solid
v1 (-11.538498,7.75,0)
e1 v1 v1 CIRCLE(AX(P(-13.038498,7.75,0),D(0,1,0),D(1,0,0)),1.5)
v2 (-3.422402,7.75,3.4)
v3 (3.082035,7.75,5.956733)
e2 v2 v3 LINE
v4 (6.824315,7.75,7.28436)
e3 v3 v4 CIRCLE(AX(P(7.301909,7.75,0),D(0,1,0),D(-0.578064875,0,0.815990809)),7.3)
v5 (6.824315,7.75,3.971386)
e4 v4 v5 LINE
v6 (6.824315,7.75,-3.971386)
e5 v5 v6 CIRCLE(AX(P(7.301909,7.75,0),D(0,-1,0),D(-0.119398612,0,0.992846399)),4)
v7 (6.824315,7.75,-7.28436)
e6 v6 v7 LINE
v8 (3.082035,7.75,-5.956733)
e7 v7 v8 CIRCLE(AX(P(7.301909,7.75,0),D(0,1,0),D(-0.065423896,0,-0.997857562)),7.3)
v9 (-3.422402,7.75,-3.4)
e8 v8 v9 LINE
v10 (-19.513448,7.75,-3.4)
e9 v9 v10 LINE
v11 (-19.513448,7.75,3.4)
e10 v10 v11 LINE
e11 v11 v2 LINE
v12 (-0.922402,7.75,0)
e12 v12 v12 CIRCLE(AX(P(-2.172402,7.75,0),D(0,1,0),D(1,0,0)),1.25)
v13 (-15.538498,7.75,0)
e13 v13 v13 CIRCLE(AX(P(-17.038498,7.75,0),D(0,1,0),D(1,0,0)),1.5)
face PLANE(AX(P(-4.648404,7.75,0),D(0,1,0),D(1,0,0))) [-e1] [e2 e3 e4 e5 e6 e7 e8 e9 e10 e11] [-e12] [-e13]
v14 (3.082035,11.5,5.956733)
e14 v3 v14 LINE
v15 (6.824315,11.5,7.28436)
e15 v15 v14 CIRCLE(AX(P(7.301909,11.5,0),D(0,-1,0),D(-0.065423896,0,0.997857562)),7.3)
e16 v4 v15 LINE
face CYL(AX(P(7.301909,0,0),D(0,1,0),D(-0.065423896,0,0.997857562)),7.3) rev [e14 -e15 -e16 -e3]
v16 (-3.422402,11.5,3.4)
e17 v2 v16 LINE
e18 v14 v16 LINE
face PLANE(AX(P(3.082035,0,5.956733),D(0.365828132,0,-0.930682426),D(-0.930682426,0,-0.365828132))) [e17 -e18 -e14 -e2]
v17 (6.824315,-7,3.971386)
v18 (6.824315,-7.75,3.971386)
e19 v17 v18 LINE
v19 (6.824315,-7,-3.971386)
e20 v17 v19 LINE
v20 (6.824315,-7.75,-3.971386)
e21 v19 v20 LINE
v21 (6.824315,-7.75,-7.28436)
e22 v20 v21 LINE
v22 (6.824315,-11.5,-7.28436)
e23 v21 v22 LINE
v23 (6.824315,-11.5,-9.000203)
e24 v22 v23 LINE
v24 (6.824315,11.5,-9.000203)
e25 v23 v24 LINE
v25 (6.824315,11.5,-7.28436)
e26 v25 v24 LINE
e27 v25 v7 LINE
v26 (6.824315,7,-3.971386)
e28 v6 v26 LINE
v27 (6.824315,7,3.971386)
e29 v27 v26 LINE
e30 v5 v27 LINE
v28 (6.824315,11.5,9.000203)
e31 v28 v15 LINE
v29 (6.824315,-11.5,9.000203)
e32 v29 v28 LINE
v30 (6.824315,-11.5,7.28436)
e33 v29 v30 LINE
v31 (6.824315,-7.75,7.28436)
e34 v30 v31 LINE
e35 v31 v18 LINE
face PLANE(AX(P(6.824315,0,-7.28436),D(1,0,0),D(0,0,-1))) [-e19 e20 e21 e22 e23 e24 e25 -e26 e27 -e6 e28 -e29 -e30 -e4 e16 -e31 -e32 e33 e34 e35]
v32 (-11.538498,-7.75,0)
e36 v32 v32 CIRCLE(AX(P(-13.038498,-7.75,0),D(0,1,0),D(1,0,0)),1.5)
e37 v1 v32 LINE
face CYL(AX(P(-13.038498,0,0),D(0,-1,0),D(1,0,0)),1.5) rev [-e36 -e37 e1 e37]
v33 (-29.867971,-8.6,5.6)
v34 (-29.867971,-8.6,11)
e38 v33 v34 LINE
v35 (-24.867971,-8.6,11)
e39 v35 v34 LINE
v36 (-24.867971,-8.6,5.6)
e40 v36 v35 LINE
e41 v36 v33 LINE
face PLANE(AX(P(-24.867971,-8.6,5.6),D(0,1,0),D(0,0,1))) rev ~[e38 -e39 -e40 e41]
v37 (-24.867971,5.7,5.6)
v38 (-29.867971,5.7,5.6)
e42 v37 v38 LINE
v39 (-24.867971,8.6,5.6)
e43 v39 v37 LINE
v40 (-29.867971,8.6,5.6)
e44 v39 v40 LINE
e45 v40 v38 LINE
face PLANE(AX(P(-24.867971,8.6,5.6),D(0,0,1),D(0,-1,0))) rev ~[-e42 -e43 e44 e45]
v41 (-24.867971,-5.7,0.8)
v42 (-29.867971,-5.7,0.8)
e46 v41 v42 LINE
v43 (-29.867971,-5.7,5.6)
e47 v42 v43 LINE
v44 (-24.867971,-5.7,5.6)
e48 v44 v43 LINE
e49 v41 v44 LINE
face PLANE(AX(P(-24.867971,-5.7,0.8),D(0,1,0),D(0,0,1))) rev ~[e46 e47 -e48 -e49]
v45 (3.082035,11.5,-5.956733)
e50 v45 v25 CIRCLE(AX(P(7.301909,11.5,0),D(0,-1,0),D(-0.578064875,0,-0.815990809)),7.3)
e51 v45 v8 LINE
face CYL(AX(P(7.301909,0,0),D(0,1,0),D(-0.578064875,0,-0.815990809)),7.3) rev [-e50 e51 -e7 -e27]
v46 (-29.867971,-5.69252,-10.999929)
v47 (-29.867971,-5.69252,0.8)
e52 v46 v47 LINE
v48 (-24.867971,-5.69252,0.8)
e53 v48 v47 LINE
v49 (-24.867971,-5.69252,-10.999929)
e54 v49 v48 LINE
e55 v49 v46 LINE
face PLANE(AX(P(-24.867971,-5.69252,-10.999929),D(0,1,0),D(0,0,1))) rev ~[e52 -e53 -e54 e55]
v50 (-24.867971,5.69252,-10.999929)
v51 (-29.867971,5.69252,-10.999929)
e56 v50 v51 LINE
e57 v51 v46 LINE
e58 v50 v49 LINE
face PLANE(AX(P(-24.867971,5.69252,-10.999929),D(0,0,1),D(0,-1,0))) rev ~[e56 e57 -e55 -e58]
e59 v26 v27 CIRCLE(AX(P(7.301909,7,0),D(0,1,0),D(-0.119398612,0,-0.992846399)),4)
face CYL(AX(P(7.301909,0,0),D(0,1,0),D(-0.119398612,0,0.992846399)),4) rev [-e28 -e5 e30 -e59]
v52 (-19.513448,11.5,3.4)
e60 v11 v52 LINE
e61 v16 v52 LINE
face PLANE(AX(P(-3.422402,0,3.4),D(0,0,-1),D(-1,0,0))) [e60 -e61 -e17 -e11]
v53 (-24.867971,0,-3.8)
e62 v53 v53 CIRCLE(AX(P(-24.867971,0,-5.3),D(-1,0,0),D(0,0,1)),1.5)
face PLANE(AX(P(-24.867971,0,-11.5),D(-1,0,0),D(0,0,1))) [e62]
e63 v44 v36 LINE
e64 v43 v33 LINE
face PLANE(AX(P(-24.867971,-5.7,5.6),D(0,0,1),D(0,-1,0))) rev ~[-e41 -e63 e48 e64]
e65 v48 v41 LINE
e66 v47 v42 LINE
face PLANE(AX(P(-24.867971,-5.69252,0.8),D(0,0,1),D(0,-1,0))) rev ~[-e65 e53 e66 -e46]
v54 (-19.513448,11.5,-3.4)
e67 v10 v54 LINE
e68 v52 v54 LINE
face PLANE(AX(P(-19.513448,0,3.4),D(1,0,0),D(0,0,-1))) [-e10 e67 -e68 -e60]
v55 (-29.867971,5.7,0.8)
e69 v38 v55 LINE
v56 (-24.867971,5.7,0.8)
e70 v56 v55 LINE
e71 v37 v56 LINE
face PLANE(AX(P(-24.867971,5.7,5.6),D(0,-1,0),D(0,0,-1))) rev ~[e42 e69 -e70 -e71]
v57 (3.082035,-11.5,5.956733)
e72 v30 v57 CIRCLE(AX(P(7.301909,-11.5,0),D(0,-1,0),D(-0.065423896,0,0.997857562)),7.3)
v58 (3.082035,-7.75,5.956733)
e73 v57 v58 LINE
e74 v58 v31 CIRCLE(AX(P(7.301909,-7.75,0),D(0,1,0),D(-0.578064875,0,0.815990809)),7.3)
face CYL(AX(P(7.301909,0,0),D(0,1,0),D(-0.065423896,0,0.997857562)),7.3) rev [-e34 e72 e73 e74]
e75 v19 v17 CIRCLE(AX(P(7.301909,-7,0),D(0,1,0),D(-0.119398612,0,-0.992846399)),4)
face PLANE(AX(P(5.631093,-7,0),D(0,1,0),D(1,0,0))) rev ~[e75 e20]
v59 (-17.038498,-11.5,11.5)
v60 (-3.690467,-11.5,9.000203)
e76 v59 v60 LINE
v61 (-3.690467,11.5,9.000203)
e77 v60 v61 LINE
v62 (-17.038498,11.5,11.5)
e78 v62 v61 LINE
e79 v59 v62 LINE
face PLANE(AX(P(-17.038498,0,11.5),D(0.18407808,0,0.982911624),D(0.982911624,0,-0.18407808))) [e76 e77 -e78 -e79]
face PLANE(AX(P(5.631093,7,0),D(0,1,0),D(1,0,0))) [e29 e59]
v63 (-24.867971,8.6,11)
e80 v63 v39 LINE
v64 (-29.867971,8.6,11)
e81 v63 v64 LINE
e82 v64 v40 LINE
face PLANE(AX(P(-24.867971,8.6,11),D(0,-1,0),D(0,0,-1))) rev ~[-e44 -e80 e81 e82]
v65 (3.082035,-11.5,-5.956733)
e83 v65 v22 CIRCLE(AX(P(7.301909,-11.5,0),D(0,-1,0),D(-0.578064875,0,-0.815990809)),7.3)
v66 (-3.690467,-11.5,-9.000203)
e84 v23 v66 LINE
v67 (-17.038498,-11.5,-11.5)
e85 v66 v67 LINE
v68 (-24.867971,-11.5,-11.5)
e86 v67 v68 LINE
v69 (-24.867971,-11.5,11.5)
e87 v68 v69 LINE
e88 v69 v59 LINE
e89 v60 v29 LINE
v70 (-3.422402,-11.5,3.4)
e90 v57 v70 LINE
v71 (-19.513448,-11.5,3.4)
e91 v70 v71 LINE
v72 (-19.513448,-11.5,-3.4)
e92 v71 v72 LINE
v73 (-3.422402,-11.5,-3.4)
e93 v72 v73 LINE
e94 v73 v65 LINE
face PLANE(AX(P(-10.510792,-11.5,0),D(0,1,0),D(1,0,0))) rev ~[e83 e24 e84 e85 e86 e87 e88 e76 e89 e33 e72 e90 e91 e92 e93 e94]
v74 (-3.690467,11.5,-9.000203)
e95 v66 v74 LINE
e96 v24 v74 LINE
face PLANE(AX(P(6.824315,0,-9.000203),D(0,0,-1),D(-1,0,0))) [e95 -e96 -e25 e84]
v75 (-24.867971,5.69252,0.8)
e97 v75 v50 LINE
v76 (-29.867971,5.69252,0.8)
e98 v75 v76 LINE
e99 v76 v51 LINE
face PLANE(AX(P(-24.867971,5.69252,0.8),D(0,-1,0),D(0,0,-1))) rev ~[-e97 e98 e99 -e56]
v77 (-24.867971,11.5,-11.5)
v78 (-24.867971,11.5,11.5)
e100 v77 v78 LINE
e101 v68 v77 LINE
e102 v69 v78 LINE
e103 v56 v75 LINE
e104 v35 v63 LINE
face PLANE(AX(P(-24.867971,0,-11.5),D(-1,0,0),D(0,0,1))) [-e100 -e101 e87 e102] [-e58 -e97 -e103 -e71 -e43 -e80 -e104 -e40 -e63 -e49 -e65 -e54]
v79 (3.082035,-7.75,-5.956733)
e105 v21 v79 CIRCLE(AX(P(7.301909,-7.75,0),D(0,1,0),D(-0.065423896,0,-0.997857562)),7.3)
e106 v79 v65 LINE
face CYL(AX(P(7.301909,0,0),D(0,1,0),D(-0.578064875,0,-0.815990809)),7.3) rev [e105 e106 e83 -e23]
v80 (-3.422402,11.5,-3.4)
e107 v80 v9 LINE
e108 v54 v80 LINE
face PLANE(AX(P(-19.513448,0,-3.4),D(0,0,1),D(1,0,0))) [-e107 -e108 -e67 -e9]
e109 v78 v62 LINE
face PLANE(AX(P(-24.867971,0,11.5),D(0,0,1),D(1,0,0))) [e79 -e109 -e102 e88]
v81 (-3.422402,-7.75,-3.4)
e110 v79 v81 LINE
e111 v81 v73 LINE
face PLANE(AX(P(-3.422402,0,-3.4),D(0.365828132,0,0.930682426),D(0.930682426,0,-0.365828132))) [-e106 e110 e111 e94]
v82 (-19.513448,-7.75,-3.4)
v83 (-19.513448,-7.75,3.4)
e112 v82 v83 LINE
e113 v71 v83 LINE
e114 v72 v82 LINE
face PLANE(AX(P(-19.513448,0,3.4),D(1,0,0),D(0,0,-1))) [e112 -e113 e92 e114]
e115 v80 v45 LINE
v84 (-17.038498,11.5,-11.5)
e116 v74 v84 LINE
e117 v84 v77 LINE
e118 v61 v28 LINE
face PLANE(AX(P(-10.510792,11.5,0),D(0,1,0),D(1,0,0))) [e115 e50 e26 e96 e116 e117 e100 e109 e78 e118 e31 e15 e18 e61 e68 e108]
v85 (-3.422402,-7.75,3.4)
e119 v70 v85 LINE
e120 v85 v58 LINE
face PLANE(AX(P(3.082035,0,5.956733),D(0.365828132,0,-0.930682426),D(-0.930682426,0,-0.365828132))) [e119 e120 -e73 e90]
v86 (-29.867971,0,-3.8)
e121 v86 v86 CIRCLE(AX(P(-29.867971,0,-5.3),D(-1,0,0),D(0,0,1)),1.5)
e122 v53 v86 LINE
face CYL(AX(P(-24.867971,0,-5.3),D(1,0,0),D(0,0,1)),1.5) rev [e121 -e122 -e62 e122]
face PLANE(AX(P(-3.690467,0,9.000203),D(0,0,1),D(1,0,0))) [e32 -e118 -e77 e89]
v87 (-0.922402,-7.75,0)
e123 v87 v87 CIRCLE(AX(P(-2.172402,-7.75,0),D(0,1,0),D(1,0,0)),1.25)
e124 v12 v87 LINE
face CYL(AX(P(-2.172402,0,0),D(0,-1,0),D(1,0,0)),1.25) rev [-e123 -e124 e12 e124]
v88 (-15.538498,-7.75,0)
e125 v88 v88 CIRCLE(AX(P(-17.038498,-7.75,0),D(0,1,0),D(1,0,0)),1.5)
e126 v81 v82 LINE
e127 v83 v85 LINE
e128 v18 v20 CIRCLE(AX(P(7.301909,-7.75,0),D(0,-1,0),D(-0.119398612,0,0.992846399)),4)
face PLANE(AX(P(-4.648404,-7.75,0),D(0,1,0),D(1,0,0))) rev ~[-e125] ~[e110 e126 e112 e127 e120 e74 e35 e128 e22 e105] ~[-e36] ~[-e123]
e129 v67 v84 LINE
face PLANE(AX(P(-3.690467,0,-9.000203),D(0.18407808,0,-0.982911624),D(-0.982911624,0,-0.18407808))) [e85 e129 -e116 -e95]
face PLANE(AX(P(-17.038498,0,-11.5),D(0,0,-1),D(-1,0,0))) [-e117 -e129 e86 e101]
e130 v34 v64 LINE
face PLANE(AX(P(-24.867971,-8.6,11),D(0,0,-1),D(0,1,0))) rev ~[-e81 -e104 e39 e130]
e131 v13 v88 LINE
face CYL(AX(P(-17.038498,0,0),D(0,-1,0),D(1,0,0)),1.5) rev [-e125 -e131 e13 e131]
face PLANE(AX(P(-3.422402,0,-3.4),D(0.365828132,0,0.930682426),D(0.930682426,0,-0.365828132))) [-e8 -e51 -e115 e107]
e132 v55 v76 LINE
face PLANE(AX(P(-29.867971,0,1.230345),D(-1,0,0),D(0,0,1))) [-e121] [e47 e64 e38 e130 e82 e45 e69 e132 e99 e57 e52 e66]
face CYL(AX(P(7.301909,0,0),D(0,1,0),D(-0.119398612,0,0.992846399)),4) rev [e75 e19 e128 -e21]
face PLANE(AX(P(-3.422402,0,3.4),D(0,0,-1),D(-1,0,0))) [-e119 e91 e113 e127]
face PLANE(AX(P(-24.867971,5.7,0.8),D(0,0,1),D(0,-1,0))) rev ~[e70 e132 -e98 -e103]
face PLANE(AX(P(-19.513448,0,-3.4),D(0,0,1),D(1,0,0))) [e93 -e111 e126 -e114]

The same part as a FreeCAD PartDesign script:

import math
import FreeCAD as App
import Part
import Sketcher
Q = App.Units.Quantity


def add_polygon(sketch, points):
    """Adds a closed chain of lines whose ends are joined by coincident constraints."""
    first, n = sketch.GeometryCount, len(points)
    for a, b in zip(points, points[1:] + points[:1]):
        sketch.addGeometry(Part.LineSegment(App.Vector(*a, 0), App.Vector(*b, 0)), False)
    for i in range(n):
        sketch.addConstraint(Sketcher.Constraint("Coincident", first + i, 2, first + (i + 1) % n, 1))

doc = App.newDocument("Part")
body = doc.addObject("PartDesign::Body", "Body")

# Sketch on XZ plane
sketch1 = body.newObject("Sketcher::SketchObject", "Sketch")
sketch1.AttachmentSupport = (doc.getObject("XZ_Plane"), [""])
sketch1.MapMode = "FlatFace"
sketch1.addGeometry([
    Part.LineSegment(App.Vector(6.8, -7.3, 0), App.Vector(6.8, -9, 0)),  # 0
    Part.LineSegment(App.Vector(6.8, -9, 0), App.Vector(-3.7, -9, 0)),  # 1
    Part.LineSegment(App.Vector(-3.7, -9, 0), App.Vector(-17, -11.5, 0)),  # 2
    Part.LineSegment(App.Vector(-17, -11.5, 0), App.Vector(-24.9, -11.5, 0)),  # 3
    Part.LineSegment(App.Vector(-24.9, -11.5, 0), App.Vector(-24.9, 11.5, 0)),  # 4
    Part.LineSegment(App.Vector(-24.9, 11.5, 0), App.Vector(-17, 11.5, 0)),  # 5
    Part.LineSegment(App.Vector(-17, 11.5, 0), App.Vector(-3.7, 9, 0)),  # 6
    Part.LineSegment(App.Vector(-3.7, 9, 0), App.Vector(6.8, 9, 0)),  # 7
    Part.LineSegment(App.Vector(6.8, 9, 0), App.Vector(6.8, 7.3, 0)),  # 8
    Part.ArcOfCircle(Part.Circle(App.Vector(7.3, 0, 0), App.Vector(0, 0, 1), 7.3), math.radians(94), math.radians(125)),  # 9
    Part.LineSegment(App.Vector(3.1, 6, 0), App.Vector(-3.4, 3.4, 0)),  # 10
    Part.LineSegment(App.Vector(-3.4, 3.4, 0), App.Vector(-19.5, 3.4, 0)),  # 11
    Part.LineSegment(App.Vector(-19.5, 3.4, 0), App.Vector(-19.5, -3.4, 0)),  # 12
    Part.LineSegment(App.Vector(-19.5, -3.4, 0), App.Vector(-3.4, -3.4, 0)),  # 13
    Part.LineSegment(App.Vector(-3.4, -3.4, 0), App.Vector(3.1, -6, 0)),  # 14
    Part.ArcOfCircle(Part.Circle(App.Vector(7.3, 0, 0), App.Vector(0, 0, 1), 7.3), math.radians(-125), math.radians(-94)),  # 15
], False)
sketch1.addConstraint([
    Sketcher.Constraint("Coincident", 0, 2, 1, 1),
    Sketcher.Constraint("Coincident", 1, 2, 2, 1),
    Sketcher.Constraint("Coincident", 2, 2, 3, 1),
    Sketcher.Constraint("Coincident", 3, 2, 4, 1),
    Sketcher.Constraint("Coincident", 4, 2, 5, 1),
    Sketcher.Constraint("Coincident", 5, 2, 6, 1),
    Sketcher.Constraint("Coincident", 6, 2, 7, 1),
    Sketcher.Constraint("Coincident", 7, 2, 8, 1),
    Sketcher.Constraint("Coincident", 8, 2, 9, 1),
    Sketcher.Constraint("Coincident", 9, 2, 10, 1),
    Sketcher.Constraint("Coincident", 10, 2, 11, 1),
    Sketcher.Constraint("Coincident", 11, 2, 12, 1),
    Sketcher.Constraint("Coincident", 12, 2, 13, 1),
    Sketcher.Constraint("Coincident", 13, 2, 14, 1),
    Sketcher.Constraint("Coincident", 14, 2, 15, 1),
    Sketcher.Constraint("Coincident", 15, 2, 0, 1),
    Sketcher.Constraint("Vertical", 0),
    Sketcher.Constraint("Horizontal", 1),
    Sketcher.Constraint("Horizontal", 3),
    Sketcher.Constraint("Vertical", 4),
    Sketcher.Constraint("Horizontal", 5),
    Sketcher.Constraint("Horizontal", 7),
    Sketcher.Constraint("Vertical", 8),
    Sketcher.Constraint("Horizontal", 11),
    Sketcher.Constraint("Vertical", 12),
    Sketcher.Constraint("Horizontal", 13),
    Sketcher.Constraint("Coincident", 15, 3, 9, 3),
    Sketcher.Constraint("Equal", 9, 15),
    Sketcher.Constraint("Symmetric", 2, 2, 5, 2, -1),
    Sketcher.Constraint("Symmetric", 1, 2, 6, 2, -1),
    Sketcher.Constraint("Symmetric", 10, 2, 13, 2, -1),
    Sketcher.Constraint("Symmetric", 9, 2, 14, 2, -1),
    Sketcher.Constraint("Vertical", 0, 2, 7, 2),
    Sketcher.Constraint("Radius", 9, Q("7.3 mm")),
    Sketcher.Constraint("DistanceY", 4, 1, 4, 2, Q("23 mm")),
    Sketcher.Constraint("DistanceY", 12, 2, 12, 1, Q("6.8 mm")),
    Sketcher.Constraint("DistanceX", 1, 2, 1, 1, Q("10.514782 mm")),
    Sketcher.Constraint("Distance", 2, Q("13.580092 mm")),
    Sketcher.Constraint("Distance", 10, Q("6.988891 mm")),
    Sketcher.Constraint("DistanceX", 3, 2, 3, 1, Q("7.829474 mm")),
    Sketcher.Constraint("DistanceX", 11, 2, 11, 1, Q("16.091046 mm")),
    Sketcher.Constraint("DistanceY", 0, 2, 0, 1, Q("1.715843 mm")),
    Sketcher.Constraint("DistanceX", -1, 1, 9, 3, Q("7.301909 mm")),
    Sketcher.Constraint("DistanceX", 3, 2, -1, 1, Q("24.867971 mm")),
    Sketcher.Constraint("DistanceX", 11, 2, -1, 1, Q("19.513448 mm")),
])
pad1 = body.newObject("PartDesign::Pad", "Pad")
pad1.Profile = sketch1
pad1.Length = 23
pad1.Midplane = True

# Sketch on XZ plane
sketch2 = body.newObject("Sketcher::SketchObject", "Sketch001")
sketch2.AttachmentSupport = (doc.getObject("XZ_Plane"), [""])
sketch2.MapMode = "FlatFace"
sketch2.addGeometry([
    Part.LineSegment(App.Vector(6.8, -4, 0), App.Vector(6.8, -7.3, 0)),  # 0
    Part.ArcOfCircle(Part.Circle(App.Vector(7.3, 0, 0), App.Vector(0, 0, 1), 7.3), math.radians(-125), math.radians(-94)),  # 1
    Part.LineSegment(App.Vector(3.1, -6, 0), App.Vector(-3.4, -3.4, 0)),  # 2
    Part.LineSegment(App.Vector(-3.4, -3.4, 0), App.Vector(-19.5, -3.4, 0)),  # 3
    Part.LineSegment(App.Vector(-19.5, -3.4, 0), App.Vector(-19.5, 3.4, 0)),  # 4
    Part.LineSegment(App.Vector(-19.5, 3.4, 0), App.Vector(-3.4, 3.4, 0)),  # 5
    Part.LineSegment(App.Vector(-3.4, 3.4, 0), App.Vector(3.1, 6, 0)),  # 6
    Part.ArcOfCircle(Part.Circle(App.Vector(7.3, 0, 0), App.Vector(0, 0, 1), 7.3), math.radians(94), math.radians(125)),  # 7
    Part.LineSegment(App.Vector(6.8, 7.3, 0), App.Vector(6.8, 4, 0)),  # 8
    Part.ArcOfCircle(Part.Circle(App.Vector(7.3, 0, 0), App.Vector(0, 0, 1), 4), math.radians(97), math.radians(263)),  # 9
    Part.Circle(App.Vector(-17, 0, 0), App.Vector(0, 0, 1), 1.5),  # 10
    Part.Circle(App.Vector(-13, 0, 0), App.Vector(0, 0, 1), 1.5),  # 11
    Part.Circle(App.Vector(-2.2, 0, 0), App.Vector(0, 0, 1), 1.2),  # 12
], False)
sketch2.addConstraint([
    Sketcher.Constraint("Coincident", 0, 2, 1, 2),
    Sketcher.Constraint("Coincident", 1, 1, 2, 1),
    Sketcher.Constraint("Coincident", 2, 2, 3, 1),
    Sketcher.Constraint("Coincident", 3, 2, 4, 1),
    Sketcher.Constraint("Coincident", 4, 2, 5, 1),
    Sketcher.Constraint("Coincident", 5, 2, 6, 1),
    Sketcher.Constraint("Coincident", 6, 2, 7, 2),
    Sketcher.Constraint("Coincident", 7, 1, 8, 1),
    Sketcher.Constraint("Coincident", 8, 2, 9, 1),
    Sketcher.Constraint("Coincident", 9, 2, 0, 1),
    Sketcher.Constraint("Vertical", 0),
    Sketcher.Constraint("Horizontal", 3),
    Sketcher.Constraint("Vertical", 4),
    Sketcher.Constraint("Horizontal", 5),
    Sketcher.Constraint("Vertical", 8),
    Sketcher.Constraint("Coincident", 7, 3, 1, 3),
    Sketcher.Constraint("Coincident", 9, 3, 1, 3),
    Sketcher.Constraint("Equal", 1, 7),
    Sketcher.Constraint("Equal", 10, 11),
    Sketcher.Constraint("Symmetric", 2, 2, 5, 2, -1),
    Sketcher.Constraint("Symmetric", 1, 1, 6, 2, -1),
    Sketcher.Constraint("PointOnObject", 10, 3, -1),
    Sketcher.Constraint("PointOnObject", 11, 3, -1),
    Sketcher.Constraint("PointOnObject", 12, 3, -1),
    Sketcher.Constraint("Vertical", 0, 2, 7, 1),
    Sketcher.Constraint("Diameter", 10, Q("3 mm")),
    Sketcher.Constraint("Radius", 9, Q("4 mm")),
    Sketcher.Constraint("Diameter", 12, Q("2.5 mm")),
    Sketcher.Constraint("Radius", 1, Q("7.3 mm")),
    Sketcher.Constraint("DistanceY", 4, 1, 4, 2, Q("6.8 mm")),
    Sketcher.Constraint("DistanceX", 10, 3, 11, 3, Q("4 mm")),
    Sketcher.Constraint("DistanceX", 2, 2, 12, 3, Q("1.25 mm")),
    Sketcher.Constraint("Distance", 2, Q("6.988891 mm")),
    Sketcher.Constraint("DistanceX", 3, 2, 3, 1, Q("16.091046 mm")),
    Sketcher.Constraint("DistanceY", 0, 2, 0, 1, Q("3.312975 mm")),
    Sketcher.Constraint("DistanceX", -1, 1, 1, 3, Q("7.301909 mm")),
    Sketcher.Constraint("DistanceX", 3, 2, -1, 1, Q("19.513448 mm")),
    Sketcher.Constraint("DistanceX", 3, 2, 10, 3, Q("2.474951 mm")),
])
pad2 = body.newObject("PartDesign::Pad", "Pad001")
pad2.Profile = sketch2
pad2.Length = 15.5
pad2.Midplane = True

# Sketch on XZ plane
sketch3 = body.newObject("Sketcher::SketchObject", "Sketch002")
sketch3.AttachmentSupport = (doc.getObject("XZ_Plane"), [""])
sketch3.MapMode = "FlatFace"
sketch3.addGeometry([
    Part.LineSegment(App.Vector(6.8, 4, 0), App.Vector(6.8, -4, 0)),
    Part.ArcOfCircle(Part.Circle(App.Vector(7.3, 0, 0), App.Vector(0, 0, 1), 4), math.radians(97), math.radians(263)),
], False)
sketch3.addConstraint([
    Sketcher.Constraint("Coincident", 0, 1, 1, 1),
    Sketcher.Constraint("Coincident", 1, 2, 0, 2),
    Sketcher.Constraint("Vertical", 0),
    Sketcher.Constraint("PointOnObject", 1, 3, -1),
    Sketcher.Constraint("Radius", 1, Q("4 mm")),
    Sketcher.Constraint("DistanceY", 0, 2, 0, 1, Q("7.942771 mm")),
    Sketcher.Constraint("DistanceX", -1, 1, 1, 3, Q("7.301909 mm")),
])
pad3 = body.newObject("PartDesign::Pad", "Pad002")
pad3.Profile = sketch3
pad3.Length = 14
pad3.Midplane = True

# Sketch on YZ plane
sketch4 = body.newObject("Sketcher::SketchObject", "Sketch003")
sketch4.AttachmentSupport = (doc.getObject("YZ_Plane"), [""])
sketch4.MapMode = "FlatFace"
sketch4.AttachmentOffset = App.Placement(App.Vector(0, 0, -24.867971), App.Rotation())
add_polygon(sketch4, [(5.693, 0.8), (5.693, -11), (-5.693, -11), (-5.693, 0.8), (-5.7, 0.8), (-5.7, 5.6), (-8.6, 5.6), (-8.6, 11), (8.6, 11), (8.6, 5.6), (5.7, 5.6), (5.7, 0.8)])  # lines 0-11
sketch4.addGeometry(Part.Circle(App.Vector(0, -5.3, 0), App.Vector(0, 0, 1), 1.5), False)  # 12
sketch4.addConstraint([
    Sketcher.Constraint("Vertical", 0),
    Sketcher.Constraint("Horizontal", 1),
    Sketcher.Constraint("Vertical", 2),
    Sketcher.Constraint("Horizontal", 3),
    Sketcher.Constraint("Vertical", 4),
    Sketcher.Constraint("Horizontal", 5),
    Sketcher.Constraint("Vertical", 6),
    Sketcher.Constraint("Horizontal", 7),
    Sketcher.Constraint("Vertical", 8),
    Sketcher.Constraint("Horizontal", 9),
    Sketcher.Constraint("Vertical", 10),
    Sketcher.Constraint("Horizontal", 11),
    Sketcher.Constraint("Symmetric", 5, 2, 8, 2, -2),
    Sketcher.Constraint("Symmetric", 3, 2, 10, 2, -2),
    Sketcher.Constraint("PointOnObject", 12, 3, -2),
    Sketcher.Constraint("Equal", 3, 11),
    Sketcher.Constraint("Diameter", 12, Q("3 mm")),
    Sketcher.Constraint("DistanceX", 5, 2, 5, 1, Q("2.9 mm")),
    Sketcher.Constraint("DistanceX", 7, 1, 7, 2, Q("17.2 mm")),
    Sketcher.Constraint("DistanceY", 4, 1, 4, 2, Q("4.8 mm")),
    Sketcher.Constraint("DistanceY", 6, 1, 6, 2, Q("5.4 mm")),
    Sketcher.Constraint("DistanceY", -1, 1, 6, 2, Q("11 mm")),
    Sketcher.Constraint("DistanceY", 12, 3, -1, 1, Q("5.3 mm")),
    Sketcher.Constraint("DistanceX", 1, 2, 1, 1, Q("11.38504 mm")),
    Sketcher.Constraint("DistanceY", 0, 2, 0, 1, Q("11.799929 mm")),
])
pad4 = body.newObject("PartDesign::Pad", "Pad003")
pad4.Profile = sketch4
pad4.Length = 5
pad4.Reversed = True

doc.recompute()
